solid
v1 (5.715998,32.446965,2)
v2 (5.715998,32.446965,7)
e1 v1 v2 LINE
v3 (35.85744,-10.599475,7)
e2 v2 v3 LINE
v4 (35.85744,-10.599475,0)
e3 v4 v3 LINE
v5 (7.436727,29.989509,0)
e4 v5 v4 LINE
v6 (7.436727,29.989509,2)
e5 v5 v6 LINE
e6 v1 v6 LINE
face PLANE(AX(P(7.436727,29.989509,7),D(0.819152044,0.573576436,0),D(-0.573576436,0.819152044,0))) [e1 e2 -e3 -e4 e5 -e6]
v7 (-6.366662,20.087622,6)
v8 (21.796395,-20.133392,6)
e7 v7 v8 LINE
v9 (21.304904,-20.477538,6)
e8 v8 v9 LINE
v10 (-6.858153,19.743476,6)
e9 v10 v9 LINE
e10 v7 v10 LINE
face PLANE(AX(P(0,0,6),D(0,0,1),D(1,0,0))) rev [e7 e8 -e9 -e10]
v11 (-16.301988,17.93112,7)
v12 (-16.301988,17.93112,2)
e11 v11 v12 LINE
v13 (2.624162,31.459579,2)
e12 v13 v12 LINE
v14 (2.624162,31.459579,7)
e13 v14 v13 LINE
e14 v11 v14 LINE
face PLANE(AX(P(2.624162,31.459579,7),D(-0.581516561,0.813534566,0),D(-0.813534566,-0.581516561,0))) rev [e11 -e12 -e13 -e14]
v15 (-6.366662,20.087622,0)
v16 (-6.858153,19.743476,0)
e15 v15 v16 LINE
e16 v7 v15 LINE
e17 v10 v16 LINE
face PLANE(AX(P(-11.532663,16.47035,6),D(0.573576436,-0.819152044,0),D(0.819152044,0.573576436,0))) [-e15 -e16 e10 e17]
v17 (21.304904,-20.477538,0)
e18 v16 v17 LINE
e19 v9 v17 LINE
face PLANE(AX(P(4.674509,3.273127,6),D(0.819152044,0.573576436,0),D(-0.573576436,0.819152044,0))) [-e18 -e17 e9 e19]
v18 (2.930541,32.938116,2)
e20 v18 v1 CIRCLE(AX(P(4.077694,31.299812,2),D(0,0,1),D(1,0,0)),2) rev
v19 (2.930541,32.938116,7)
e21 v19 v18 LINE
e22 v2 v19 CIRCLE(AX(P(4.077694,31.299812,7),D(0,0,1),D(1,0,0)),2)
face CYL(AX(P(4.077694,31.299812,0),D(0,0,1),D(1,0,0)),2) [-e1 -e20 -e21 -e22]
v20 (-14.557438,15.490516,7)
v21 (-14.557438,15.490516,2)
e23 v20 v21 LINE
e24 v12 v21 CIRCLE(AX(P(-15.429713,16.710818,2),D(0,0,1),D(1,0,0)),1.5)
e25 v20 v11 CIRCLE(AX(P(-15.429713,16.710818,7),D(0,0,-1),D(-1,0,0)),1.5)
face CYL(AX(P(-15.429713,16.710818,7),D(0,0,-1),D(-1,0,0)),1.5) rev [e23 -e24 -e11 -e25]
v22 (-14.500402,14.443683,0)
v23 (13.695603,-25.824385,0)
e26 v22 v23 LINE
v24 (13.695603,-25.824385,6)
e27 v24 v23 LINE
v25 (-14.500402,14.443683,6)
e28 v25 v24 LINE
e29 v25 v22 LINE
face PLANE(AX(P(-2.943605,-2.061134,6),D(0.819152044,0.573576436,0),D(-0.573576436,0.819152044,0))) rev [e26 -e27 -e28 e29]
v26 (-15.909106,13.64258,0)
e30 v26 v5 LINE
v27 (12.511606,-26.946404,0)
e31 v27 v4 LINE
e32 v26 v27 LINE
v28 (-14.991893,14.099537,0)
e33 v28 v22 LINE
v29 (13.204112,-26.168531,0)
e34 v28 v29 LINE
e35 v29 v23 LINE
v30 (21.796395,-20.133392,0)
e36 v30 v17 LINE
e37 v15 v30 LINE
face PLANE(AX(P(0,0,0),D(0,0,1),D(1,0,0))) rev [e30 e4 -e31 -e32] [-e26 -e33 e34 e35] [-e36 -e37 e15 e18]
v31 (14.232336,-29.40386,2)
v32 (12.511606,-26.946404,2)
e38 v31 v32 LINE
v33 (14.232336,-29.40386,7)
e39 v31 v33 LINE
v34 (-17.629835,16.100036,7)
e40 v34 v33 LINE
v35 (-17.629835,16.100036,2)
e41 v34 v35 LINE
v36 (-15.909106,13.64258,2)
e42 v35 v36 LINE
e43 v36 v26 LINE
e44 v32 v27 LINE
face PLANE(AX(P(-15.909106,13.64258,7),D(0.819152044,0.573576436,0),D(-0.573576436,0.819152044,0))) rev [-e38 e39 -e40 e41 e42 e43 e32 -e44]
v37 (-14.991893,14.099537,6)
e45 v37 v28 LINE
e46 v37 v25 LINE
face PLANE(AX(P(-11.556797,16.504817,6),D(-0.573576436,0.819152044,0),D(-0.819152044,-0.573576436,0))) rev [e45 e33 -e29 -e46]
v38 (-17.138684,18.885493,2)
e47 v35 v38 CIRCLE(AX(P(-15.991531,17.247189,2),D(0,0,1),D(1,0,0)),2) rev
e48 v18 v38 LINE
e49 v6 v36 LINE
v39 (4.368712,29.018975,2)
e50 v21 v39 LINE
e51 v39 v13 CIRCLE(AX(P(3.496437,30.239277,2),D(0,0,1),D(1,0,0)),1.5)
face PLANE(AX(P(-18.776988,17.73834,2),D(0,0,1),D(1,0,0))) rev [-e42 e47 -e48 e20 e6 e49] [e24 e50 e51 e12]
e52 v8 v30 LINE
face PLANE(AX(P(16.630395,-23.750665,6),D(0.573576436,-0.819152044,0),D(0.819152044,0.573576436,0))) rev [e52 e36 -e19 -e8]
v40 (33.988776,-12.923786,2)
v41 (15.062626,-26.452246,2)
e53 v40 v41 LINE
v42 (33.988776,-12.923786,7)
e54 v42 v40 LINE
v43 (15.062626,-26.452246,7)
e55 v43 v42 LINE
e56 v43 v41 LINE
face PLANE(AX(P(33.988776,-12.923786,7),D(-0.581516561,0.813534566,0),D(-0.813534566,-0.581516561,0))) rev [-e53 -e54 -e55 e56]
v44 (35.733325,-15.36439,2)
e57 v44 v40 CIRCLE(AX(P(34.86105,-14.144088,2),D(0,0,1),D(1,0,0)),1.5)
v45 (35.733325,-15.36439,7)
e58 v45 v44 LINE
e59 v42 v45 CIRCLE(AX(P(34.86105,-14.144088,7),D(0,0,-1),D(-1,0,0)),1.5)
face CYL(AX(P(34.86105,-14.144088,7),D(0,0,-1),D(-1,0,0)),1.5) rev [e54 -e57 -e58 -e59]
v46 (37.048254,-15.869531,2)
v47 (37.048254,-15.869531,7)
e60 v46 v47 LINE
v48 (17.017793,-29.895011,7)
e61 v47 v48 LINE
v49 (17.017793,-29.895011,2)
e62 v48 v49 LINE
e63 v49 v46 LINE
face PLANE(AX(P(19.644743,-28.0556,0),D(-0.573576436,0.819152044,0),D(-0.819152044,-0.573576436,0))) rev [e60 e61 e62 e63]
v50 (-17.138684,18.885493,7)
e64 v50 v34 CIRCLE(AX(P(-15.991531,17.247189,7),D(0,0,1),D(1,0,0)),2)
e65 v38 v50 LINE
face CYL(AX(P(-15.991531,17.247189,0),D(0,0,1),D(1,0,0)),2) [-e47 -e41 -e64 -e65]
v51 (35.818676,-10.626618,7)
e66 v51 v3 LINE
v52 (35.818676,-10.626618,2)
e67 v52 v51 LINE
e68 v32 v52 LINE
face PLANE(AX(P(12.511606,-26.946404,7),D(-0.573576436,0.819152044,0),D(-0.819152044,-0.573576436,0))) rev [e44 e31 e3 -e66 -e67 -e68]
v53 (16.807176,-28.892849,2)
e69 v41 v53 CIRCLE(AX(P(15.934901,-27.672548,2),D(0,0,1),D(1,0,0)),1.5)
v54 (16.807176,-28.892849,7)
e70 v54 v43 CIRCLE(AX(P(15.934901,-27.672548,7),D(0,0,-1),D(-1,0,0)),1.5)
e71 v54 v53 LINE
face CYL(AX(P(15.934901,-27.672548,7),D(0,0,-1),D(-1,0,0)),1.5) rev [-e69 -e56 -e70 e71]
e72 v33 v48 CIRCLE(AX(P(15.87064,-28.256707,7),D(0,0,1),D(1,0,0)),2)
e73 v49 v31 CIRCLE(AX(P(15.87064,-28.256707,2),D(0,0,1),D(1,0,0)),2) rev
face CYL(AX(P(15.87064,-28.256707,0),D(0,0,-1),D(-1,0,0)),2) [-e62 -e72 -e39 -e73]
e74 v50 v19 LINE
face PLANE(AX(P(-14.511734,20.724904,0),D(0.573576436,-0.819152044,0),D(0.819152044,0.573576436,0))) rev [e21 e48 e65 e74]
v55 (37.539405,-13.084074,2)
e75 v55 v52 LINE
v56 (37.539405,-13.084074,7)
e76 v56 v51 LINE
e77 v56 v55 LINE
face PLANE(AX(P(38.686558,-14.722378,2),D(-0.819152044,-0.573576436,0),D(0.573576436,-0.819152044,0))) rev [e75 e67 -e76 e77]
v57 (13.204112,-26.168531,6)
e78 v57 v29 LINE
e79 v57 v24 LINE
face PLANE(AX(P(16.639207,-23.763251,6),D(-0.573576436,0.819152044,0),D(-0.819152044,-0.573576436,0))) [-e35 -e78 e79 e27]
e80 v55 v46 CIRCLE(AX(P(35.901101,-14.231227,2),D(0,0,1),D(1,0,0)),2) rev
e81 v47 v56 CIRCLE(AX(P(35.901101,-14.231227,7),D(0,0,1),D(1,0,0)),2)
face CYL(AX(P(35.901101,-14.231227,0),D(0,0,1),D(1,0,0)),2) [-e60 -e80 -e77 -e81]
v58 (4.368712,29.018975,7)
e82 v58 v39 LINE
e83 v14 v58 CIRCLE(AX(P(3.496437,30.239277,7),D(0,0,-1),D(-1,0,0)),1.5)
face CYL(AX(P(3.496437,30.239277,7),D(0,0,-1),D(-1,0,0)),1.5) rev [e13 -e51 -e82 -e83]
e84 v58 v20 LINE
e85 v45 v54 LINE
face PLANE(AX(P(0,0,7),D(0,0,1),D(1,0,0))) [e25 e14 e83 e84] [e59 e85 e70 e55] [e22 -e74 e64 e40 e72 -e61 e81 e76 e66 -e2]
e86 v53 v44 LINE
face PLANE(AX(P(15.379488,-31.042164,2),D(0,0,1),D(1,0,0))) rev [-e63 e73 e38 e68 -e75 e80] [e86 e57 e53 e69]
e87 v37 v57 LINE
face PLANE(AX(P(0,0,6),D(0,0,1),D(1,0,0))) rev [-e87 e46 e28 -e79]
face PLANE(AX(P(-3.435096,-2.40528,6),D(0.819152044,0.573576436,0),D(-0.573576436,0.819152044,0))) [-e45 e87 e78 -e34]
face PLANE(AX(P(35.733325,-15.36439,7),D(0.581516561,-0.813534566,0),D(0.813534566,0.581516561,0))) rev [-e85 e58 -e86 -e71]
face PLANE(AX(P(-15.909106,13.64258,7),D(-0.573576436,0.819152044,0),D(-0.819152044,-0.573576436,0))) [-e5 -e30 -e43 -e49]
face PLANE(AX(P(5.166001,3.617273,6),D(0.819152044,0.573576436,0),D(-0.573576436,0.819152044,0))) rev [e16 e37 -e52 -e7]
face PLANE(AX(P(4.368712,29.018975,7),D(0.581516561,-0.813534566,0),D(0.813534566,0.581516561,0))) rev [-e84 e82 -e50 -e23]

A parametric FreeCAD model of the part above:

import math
import FreeCAD as App
import Part
import Sketcher

V = App.Vector
Q = App.Units.Quantity


def edges_at(feature, points):
    """Names of the edges that pass closest to the given points."""
    edges = feature.Shape.Edges
    near = lambda p: min(range(len(edges)), key=lambda i: edges[i].distToShape(Part.Vertex(*p))[0])
    return sorted({f"Edge{near(p) + 1}" for p in points})


def add_polygon(sketch, points):
    """Adds a closed chain of lines whose ends are joined by coincident constraints."""
    first, n = sketch.GeometryCount, len(points)
    for a, b in zip(points, points[1:] + points[:1]):
        sketch.addGeometry(Part.LineSegment(App.Vector(*a, 0), App.Vector(*b, 0)), False)
    for i in range(n):
        sketch.addConstraint(Sketcher.Constraint("Coincident", first + i, 2, first + (i + 1) % n, 1))

doc = App.newDocument("Part")
body = doc.addObject("PartDesign::Body", "Body")

# Sketch on XY plane
sketch1 = body.newObject("Sketcher::SketchObject", "Sketch")
sketch1.AttachmentSupport = (doc.getObject("XY_Plane"), [""])
sketch1.MapMode = "FlatFace"
add_polygon(sketch1, [(-5.669706, 20.812286), (-15.909106, 13.64258), (12.511606, -26.946404), (22.751007, -19.776698)])  # lines 0-3
sketch1.addConstraint(Sketcher.Constraint("Perpendicular", 0, 1))
sketch1.addConstraint(Sketcher.Constraint("Perpendicular", 1, 2))
sketch1.addConstraint(Sketcher.Constraint("Perpendicular", 2, 3))
sketch1.addConstraint(Sketcher.Constraint("Angle", 0, Q("-145 deg")))
sketch1.addConstraint(Sketcher.Constraint("Distance", 0, Q("12.5 mm")))
sketch1.addConstraint(Sketcher.Constraint("Distance", 1, Q("49.55 mm")))
sketch1.addConstraint(Sketcher.Constraint("DistanceY", 2, 2, -1, 1, Q("19.776698 mm")))
sketch1.addConstraint(Sketcher.Constraint("DistanceX", 0, 2, -1, 1, Q("15.909106 mm")))
pad1 = body.newObject("PartDesign::Pad", "Pad")
pad1.Profile = sketch1
pad1.Length = 7

# Sketch on XY plane
sketch2 = body.newObject("Sketcher::SketchObject", "Sketch001")
sketch2.AttachmentSupport = (doc.getObject("XY_Plane"), [""])
sketch2.MapMode = "FlatFace"
add_polygon(sketch2, [(13.695603, -25.824385), (-14.500402, 14.443683), (-14.991893, 14.099537), (13.204112, -26.168531)])  # lines 0-3
add_polygon(sketch2, [(-6.366662, 20.087622), (-6.858153, 19.743476), (21.304904, -20.477538), (21.796395, -20.133392)])  # lines 4-7
sketch2.addConstraint(Sketcher.Constraint("Perpendicular", 0, 1))
sketch2.addConstraint(Sketcher.Constraint("Perpendicular", 1, 2))
sketch2.addConstraint(Sketcher.Constraint("Perpendicular", 2, 3))
sketch2.addConstraint(Sketcher.Constraint("Parallel", 3, 4))
sketch2.addConstraint(Sketcher.Constraint("Perpendicular", 4, 5))
sketch2.addConstraint(Sketcher.Constraint("Perpendicular", 5, 6))
sketch2.addConstraint(Sketcher.Constraint("Perpendicular", 6, 7))
sketch2.addConstraint(Sketcher.Constraint("Equal", 3, 4))
sketch2.addConstraint(Sketcher.Constraint("Angle", 0, Q("125 deg")))
sketch2.addConstraint(Sketcher.Constraint("Distance", 1, Q("0.6 mm")))
sketch2.addConstraint(Sketcher.Constraint("DistanceX", 0, 2, -1, 1, Q("14.500402 mm")))
sketch2.addConstraint(Sketcher.Constraint("DistanceX", 3, 2, 5, 2, Q("7.609301 mm")))
sketch2.addConstraint(Sketcher.Constraint("DistanceX", -1, 1, 2, 2, Q("13.204112 mm")))
sketch2.addConstraint(Sketcher.Constraint("DistanceY", 2, 2, -1, 1, Q("26.168531 mm")))
sketch2.addConstraint(Sketcher.Constraint("DistanceY", 5, 2, -1, 1, Q("20.477538 mm")))
sketch2.addConstraint(Sketcher.Constraint("DistanceX", 0, 2, 4, 2, Q("7.642248 mm")))
pocket1 = body.newObject("PartDesign::Pocket", "Pocket")
pocket1.Profile = sketch2
pocket1.Length = 6
pocket1.Reversed = True

# Sketch on an angled plane
sketch3 = body.newObject("Sketcher::SketchObject", "Sketch002")
sketch3.Placement = App.Placement(V(16.776861, -23.95984, 0), App.Rotation(V(-0.819152044, -0.573576436, 0), V(0, 0, -0.999999999), V(0.573576436, -0.819152044, 0), "ZXY"))
add_polygon(sketch3, [(-23.293086, 0), (-23.293086, -7), (-7.293086, -7), (-7.293086, 0)])  # lines 0-3
sketch3.addConstraint(Sketcher.Constraint("Vertical", 0))
sketch3.addConstraint(Sketcher.Constraint("Horizontal", 1))
sketch3.addConstraint(Sketcher.Constraint("Vertical", 2))
sketch3.addConstraint(Sketcher.Constraint("Horizontal", 3))
sketch3.addConstraint(Sketcher.Constraint("PointOnObject", 2, 2, -1))
sketch3.addConstraint(Sketcher.Constraint("DistanceX", 1, 1, 1, 2, Q("16 mm")))
sketch3.addConstraint(Sketcher.Constraint("DistanceY", 0, 2, 0, 1, Q("7 mm")))
sketch3.addConstraint(Sketcher.Constraint("DistanceX", 0, 2, -1, 1, Q("23.293086 mm")))
pad2 = body.newObject("PartDesign::Pad", "Pad001")
pad2.Profile = sketch3
pad2.Length = 49.55
pad2.Reversed = True

# Sketch on an angled plane
sketch4 = body.newObject("Sketcher::SketchObject", "Sketch003")
sketch4.Placement = App.Placement(V(16.776861, -23.95984, 0), App.Rotation(V(-0.819152044, -0.573576436, 0), V(0, 0, -0.999999999), V(0.573576436, -0.819152044, 0), "ZXY"))
add_polygon(sketch4, [(-23.245764, -2), (-23.245764, -7), (5.206914, -7), (5.206914, -2)])  # lines 0-3
sketch4.addConstraint(Sketcher.Constraint("Vertical", 0))
sketch4.addConstraint(Sketcher.Constraint("Horizontal", 1))
sketch4.addConstraint(Sketcher.Constraint("Vertical", 2))
sketch4.addConstraint(Sketcher.Constraint("Horizontal", 3))
sketch4.addConstraint(Sketcher.Constraint("DistanceY", 0, 2, 0, 1, Q("5 mm")))
sketch4.addConstraint(Sketcher.Constraint("DistanceY", 0, 2, -1, 1, Q("7 mm")))
sketch4.addConstraint(Sketcher.Constraint("DistanceX", 1, 1, 1, 2, Q("28.452678 mm")))
sketch4.addConstraint(Sketcher.Constraint("DistanceX", 0, 2, -1, 1, Q("23.245764 mm")))
pad3 = body.newObject("PartDesign::Pad", "Pad002")
pad3.Profile = sketch4
pad3.Length = 5

# Sketch on an angled plane
sketch5 = body.newObject("Sketcher::SketchObject", "Sketch004")
sketch5.Placement = App.Placement(V(-11.643852, 16.629144, 0), App.Rotation(V(0.819152044, 0.573576436, 0), V(0, 0, -0.999999999), V(-0.573576436, 0.819152044, 0), "ZXY"))
add_polygon(sketch5, [(-5.206914, -2), (-5.206914, -7), (23.293086, -7), (23.293086, -2)])  # lines 0-3
sketch5.addConstraint(Sketcher.Constraint("Vertical", 0))
sketch5.addConstraint(Sketcher.Constraint("Horizontal", 1))
sketch5.addConstraint(Sketcher.Constraint("Vertical", 2))
sketch5.addConstraint(Sketcher.Constraint("Horizontal", 3))
sketch5.addConstraint(Sketcher.Constraint("DistanceY", 0, 2, 0, 1, Q("5 mm")))
sketch5.addConstraint(Sketcher.Constraint("DistanceX", 1, 1, 1, 2, Q("28.5 mm")))
sketch5.addConstraint(Sketcher.Constraint("DistanceY", 0, 2, -1, 1, Q("7 mm")))
sketch5.addConstraint(Sketcher.Constraint("DistanceX", 0, 2, -1, 1, Q("5.206914 mm")))
pad4 = body.newObject("PartDesign::Pad", "Pad003")
pad4.Profile = sketch5
pad4.Length = 5

# Sketch on XY plane
sketch6 = body.newObject("Sketcher::SketchObject", "Sketch005")
sketch6.AttachmentSupport = (doc.getObject("XY_Plane"), [""])
sketch6.MapMode = "FlatFace"
sketch6.AttachmentOffset = App.Placement(V(0, 0, 2), App.Rotation())
sketch6.addGeometry(Part.LineSegment(V(15.062626, -26.452246, 0), V(33.988776, -12.923786, 0)), False)
sketch6.addGeometry(Part.ArcOfCircle(Part.Circle(V(34.86105, -14.144088, 0), V(0, 0, 1), 1.5), math.radians(-54.44272), math.radians(125.55728)), False)
sketch6.addGeometry(Part.LineSegment(V(35.733325, -15.36439, 0), V(16.807176, -28.892849, 0)), False)
sketch6.addGeometry(Part.ArcOfCircle(Part.Circle(V(15.934901, -27.672548, 0), V(0, 0, 1), 1.5), math.radians(125.55728), math.radians(305.55728)), False)
sketch6.addGeometry(Part.LineSegment(V(-16.301988, 17.93112, 0), V(2.624162, 31.459579, 0)), False)
sketch6.addGeometry(Part.ArcOfCircle(Part.Circle(V(3.496437, 30.239277, 0), V(0, 0, 1), 1.5), math.radians(-54.44272), math.radians(125.55728)), False)
sketch6.addGeometry(Part.LineSegment(V(4.368712, 29.018975, 0), V(-14.557438, 15.490516, 0)), False)
sketch6.addGeometry(Part.ArcOfCircle(Part.Circle(V(-15.429713, 16.710818, 0), V(0, 0, 1), 1.5), math.radians(125.55728), math.radians(305.55728)), False)
sketch6.addConstraint(Sketcher.Constraint("Tangent", 0, 2, 1, 2))
sketch6.addConstraint(Sketcher.Constraint("Tangent", 1, 1, 2, 1))
sketch6.addConstraint(Sketcher.Constraint("Tangent", 2, 2, 3, 2))
sketch6.addConstraint(Sketcher.Constraint("Tangent", 3, 1, 0, 1))
sketch6.addConstraint(Sketcher.Constraint("Tangent", 4, 2, 5, 2))
sketch6.addConstraint(Sketcher.Constraint("Tangent", 5, 1, 6, 1))
sketch6.addConstraint(Sketcher.Constraint("Tangent", 6, 2, 7, 2))
sketch6.addConstraint(Sketcher.Constraint("Tangent", 7, 1, 4, 1))
sketch6.addConstraint(Sketcher.Constraint("Equal", 1, 3))
sketch6.addConstraint(Sketcher.Constraint("Equal", 3, 5))
sketch6.addConstraint(Sketcher.Constraint("Equal", 5, 7))
sketch6.addConstraint(Sketcher.Constraint("Parallel", 2, 4))
sketch6.addConstraint(Sketcher.Constraint("Equal", 2, 4))
sketch6.addConstraint(Sketcher.Constraint("Radius", 1, Q("1.5 mm")))
sketch6.addConstraint(Sketcher.Constraint("Distance", 0, Q("23.2641 mm")))
sketch6.addConstraint(Sketcher.Constraint("DistanceX", -1, 1, 3, 3, Q("15.934901 mm")))
sketch6.addConstraint(Sketcher.Constraint("DistanceY", 1, 3, 0, 2, Q("1.220302 mm")))
sketch6.addConstraint(Sketcher.Constraint("DistanceY", 1, 3, -1, 1, Q("14.144088 mm")))
sketch6.addConstraint(Sketcher.Constraint("DistanceX", -1, 1, 4, 2, Q("2.624162 mm")))
sketch6.addConstraint(Sketcher.Constraint("DistanceY", -1, 1, 4, 2, Q("31.459579 mm")))
pocket2 = body.newObject("PartDesign::Pocket", "Pocket001")
pocket2.Profile = sketch6
pocket2.Type = "ThroughAll"
pocket2.Midplane = True
doc.recompute()

fillet = body.newObject("PartDesign::Fillet", "Fillet")
fillet.Base = (pocket2, edges_at(pocket2, [
    (15.379, -31.042, 4.5),
    (38.687, -14.722, 4.5),
    (-18.777, 17.738, 4.5),
    (4.569, 34.085, 4.5),
]))
fillet.Radius = 2

doc.recompute()
